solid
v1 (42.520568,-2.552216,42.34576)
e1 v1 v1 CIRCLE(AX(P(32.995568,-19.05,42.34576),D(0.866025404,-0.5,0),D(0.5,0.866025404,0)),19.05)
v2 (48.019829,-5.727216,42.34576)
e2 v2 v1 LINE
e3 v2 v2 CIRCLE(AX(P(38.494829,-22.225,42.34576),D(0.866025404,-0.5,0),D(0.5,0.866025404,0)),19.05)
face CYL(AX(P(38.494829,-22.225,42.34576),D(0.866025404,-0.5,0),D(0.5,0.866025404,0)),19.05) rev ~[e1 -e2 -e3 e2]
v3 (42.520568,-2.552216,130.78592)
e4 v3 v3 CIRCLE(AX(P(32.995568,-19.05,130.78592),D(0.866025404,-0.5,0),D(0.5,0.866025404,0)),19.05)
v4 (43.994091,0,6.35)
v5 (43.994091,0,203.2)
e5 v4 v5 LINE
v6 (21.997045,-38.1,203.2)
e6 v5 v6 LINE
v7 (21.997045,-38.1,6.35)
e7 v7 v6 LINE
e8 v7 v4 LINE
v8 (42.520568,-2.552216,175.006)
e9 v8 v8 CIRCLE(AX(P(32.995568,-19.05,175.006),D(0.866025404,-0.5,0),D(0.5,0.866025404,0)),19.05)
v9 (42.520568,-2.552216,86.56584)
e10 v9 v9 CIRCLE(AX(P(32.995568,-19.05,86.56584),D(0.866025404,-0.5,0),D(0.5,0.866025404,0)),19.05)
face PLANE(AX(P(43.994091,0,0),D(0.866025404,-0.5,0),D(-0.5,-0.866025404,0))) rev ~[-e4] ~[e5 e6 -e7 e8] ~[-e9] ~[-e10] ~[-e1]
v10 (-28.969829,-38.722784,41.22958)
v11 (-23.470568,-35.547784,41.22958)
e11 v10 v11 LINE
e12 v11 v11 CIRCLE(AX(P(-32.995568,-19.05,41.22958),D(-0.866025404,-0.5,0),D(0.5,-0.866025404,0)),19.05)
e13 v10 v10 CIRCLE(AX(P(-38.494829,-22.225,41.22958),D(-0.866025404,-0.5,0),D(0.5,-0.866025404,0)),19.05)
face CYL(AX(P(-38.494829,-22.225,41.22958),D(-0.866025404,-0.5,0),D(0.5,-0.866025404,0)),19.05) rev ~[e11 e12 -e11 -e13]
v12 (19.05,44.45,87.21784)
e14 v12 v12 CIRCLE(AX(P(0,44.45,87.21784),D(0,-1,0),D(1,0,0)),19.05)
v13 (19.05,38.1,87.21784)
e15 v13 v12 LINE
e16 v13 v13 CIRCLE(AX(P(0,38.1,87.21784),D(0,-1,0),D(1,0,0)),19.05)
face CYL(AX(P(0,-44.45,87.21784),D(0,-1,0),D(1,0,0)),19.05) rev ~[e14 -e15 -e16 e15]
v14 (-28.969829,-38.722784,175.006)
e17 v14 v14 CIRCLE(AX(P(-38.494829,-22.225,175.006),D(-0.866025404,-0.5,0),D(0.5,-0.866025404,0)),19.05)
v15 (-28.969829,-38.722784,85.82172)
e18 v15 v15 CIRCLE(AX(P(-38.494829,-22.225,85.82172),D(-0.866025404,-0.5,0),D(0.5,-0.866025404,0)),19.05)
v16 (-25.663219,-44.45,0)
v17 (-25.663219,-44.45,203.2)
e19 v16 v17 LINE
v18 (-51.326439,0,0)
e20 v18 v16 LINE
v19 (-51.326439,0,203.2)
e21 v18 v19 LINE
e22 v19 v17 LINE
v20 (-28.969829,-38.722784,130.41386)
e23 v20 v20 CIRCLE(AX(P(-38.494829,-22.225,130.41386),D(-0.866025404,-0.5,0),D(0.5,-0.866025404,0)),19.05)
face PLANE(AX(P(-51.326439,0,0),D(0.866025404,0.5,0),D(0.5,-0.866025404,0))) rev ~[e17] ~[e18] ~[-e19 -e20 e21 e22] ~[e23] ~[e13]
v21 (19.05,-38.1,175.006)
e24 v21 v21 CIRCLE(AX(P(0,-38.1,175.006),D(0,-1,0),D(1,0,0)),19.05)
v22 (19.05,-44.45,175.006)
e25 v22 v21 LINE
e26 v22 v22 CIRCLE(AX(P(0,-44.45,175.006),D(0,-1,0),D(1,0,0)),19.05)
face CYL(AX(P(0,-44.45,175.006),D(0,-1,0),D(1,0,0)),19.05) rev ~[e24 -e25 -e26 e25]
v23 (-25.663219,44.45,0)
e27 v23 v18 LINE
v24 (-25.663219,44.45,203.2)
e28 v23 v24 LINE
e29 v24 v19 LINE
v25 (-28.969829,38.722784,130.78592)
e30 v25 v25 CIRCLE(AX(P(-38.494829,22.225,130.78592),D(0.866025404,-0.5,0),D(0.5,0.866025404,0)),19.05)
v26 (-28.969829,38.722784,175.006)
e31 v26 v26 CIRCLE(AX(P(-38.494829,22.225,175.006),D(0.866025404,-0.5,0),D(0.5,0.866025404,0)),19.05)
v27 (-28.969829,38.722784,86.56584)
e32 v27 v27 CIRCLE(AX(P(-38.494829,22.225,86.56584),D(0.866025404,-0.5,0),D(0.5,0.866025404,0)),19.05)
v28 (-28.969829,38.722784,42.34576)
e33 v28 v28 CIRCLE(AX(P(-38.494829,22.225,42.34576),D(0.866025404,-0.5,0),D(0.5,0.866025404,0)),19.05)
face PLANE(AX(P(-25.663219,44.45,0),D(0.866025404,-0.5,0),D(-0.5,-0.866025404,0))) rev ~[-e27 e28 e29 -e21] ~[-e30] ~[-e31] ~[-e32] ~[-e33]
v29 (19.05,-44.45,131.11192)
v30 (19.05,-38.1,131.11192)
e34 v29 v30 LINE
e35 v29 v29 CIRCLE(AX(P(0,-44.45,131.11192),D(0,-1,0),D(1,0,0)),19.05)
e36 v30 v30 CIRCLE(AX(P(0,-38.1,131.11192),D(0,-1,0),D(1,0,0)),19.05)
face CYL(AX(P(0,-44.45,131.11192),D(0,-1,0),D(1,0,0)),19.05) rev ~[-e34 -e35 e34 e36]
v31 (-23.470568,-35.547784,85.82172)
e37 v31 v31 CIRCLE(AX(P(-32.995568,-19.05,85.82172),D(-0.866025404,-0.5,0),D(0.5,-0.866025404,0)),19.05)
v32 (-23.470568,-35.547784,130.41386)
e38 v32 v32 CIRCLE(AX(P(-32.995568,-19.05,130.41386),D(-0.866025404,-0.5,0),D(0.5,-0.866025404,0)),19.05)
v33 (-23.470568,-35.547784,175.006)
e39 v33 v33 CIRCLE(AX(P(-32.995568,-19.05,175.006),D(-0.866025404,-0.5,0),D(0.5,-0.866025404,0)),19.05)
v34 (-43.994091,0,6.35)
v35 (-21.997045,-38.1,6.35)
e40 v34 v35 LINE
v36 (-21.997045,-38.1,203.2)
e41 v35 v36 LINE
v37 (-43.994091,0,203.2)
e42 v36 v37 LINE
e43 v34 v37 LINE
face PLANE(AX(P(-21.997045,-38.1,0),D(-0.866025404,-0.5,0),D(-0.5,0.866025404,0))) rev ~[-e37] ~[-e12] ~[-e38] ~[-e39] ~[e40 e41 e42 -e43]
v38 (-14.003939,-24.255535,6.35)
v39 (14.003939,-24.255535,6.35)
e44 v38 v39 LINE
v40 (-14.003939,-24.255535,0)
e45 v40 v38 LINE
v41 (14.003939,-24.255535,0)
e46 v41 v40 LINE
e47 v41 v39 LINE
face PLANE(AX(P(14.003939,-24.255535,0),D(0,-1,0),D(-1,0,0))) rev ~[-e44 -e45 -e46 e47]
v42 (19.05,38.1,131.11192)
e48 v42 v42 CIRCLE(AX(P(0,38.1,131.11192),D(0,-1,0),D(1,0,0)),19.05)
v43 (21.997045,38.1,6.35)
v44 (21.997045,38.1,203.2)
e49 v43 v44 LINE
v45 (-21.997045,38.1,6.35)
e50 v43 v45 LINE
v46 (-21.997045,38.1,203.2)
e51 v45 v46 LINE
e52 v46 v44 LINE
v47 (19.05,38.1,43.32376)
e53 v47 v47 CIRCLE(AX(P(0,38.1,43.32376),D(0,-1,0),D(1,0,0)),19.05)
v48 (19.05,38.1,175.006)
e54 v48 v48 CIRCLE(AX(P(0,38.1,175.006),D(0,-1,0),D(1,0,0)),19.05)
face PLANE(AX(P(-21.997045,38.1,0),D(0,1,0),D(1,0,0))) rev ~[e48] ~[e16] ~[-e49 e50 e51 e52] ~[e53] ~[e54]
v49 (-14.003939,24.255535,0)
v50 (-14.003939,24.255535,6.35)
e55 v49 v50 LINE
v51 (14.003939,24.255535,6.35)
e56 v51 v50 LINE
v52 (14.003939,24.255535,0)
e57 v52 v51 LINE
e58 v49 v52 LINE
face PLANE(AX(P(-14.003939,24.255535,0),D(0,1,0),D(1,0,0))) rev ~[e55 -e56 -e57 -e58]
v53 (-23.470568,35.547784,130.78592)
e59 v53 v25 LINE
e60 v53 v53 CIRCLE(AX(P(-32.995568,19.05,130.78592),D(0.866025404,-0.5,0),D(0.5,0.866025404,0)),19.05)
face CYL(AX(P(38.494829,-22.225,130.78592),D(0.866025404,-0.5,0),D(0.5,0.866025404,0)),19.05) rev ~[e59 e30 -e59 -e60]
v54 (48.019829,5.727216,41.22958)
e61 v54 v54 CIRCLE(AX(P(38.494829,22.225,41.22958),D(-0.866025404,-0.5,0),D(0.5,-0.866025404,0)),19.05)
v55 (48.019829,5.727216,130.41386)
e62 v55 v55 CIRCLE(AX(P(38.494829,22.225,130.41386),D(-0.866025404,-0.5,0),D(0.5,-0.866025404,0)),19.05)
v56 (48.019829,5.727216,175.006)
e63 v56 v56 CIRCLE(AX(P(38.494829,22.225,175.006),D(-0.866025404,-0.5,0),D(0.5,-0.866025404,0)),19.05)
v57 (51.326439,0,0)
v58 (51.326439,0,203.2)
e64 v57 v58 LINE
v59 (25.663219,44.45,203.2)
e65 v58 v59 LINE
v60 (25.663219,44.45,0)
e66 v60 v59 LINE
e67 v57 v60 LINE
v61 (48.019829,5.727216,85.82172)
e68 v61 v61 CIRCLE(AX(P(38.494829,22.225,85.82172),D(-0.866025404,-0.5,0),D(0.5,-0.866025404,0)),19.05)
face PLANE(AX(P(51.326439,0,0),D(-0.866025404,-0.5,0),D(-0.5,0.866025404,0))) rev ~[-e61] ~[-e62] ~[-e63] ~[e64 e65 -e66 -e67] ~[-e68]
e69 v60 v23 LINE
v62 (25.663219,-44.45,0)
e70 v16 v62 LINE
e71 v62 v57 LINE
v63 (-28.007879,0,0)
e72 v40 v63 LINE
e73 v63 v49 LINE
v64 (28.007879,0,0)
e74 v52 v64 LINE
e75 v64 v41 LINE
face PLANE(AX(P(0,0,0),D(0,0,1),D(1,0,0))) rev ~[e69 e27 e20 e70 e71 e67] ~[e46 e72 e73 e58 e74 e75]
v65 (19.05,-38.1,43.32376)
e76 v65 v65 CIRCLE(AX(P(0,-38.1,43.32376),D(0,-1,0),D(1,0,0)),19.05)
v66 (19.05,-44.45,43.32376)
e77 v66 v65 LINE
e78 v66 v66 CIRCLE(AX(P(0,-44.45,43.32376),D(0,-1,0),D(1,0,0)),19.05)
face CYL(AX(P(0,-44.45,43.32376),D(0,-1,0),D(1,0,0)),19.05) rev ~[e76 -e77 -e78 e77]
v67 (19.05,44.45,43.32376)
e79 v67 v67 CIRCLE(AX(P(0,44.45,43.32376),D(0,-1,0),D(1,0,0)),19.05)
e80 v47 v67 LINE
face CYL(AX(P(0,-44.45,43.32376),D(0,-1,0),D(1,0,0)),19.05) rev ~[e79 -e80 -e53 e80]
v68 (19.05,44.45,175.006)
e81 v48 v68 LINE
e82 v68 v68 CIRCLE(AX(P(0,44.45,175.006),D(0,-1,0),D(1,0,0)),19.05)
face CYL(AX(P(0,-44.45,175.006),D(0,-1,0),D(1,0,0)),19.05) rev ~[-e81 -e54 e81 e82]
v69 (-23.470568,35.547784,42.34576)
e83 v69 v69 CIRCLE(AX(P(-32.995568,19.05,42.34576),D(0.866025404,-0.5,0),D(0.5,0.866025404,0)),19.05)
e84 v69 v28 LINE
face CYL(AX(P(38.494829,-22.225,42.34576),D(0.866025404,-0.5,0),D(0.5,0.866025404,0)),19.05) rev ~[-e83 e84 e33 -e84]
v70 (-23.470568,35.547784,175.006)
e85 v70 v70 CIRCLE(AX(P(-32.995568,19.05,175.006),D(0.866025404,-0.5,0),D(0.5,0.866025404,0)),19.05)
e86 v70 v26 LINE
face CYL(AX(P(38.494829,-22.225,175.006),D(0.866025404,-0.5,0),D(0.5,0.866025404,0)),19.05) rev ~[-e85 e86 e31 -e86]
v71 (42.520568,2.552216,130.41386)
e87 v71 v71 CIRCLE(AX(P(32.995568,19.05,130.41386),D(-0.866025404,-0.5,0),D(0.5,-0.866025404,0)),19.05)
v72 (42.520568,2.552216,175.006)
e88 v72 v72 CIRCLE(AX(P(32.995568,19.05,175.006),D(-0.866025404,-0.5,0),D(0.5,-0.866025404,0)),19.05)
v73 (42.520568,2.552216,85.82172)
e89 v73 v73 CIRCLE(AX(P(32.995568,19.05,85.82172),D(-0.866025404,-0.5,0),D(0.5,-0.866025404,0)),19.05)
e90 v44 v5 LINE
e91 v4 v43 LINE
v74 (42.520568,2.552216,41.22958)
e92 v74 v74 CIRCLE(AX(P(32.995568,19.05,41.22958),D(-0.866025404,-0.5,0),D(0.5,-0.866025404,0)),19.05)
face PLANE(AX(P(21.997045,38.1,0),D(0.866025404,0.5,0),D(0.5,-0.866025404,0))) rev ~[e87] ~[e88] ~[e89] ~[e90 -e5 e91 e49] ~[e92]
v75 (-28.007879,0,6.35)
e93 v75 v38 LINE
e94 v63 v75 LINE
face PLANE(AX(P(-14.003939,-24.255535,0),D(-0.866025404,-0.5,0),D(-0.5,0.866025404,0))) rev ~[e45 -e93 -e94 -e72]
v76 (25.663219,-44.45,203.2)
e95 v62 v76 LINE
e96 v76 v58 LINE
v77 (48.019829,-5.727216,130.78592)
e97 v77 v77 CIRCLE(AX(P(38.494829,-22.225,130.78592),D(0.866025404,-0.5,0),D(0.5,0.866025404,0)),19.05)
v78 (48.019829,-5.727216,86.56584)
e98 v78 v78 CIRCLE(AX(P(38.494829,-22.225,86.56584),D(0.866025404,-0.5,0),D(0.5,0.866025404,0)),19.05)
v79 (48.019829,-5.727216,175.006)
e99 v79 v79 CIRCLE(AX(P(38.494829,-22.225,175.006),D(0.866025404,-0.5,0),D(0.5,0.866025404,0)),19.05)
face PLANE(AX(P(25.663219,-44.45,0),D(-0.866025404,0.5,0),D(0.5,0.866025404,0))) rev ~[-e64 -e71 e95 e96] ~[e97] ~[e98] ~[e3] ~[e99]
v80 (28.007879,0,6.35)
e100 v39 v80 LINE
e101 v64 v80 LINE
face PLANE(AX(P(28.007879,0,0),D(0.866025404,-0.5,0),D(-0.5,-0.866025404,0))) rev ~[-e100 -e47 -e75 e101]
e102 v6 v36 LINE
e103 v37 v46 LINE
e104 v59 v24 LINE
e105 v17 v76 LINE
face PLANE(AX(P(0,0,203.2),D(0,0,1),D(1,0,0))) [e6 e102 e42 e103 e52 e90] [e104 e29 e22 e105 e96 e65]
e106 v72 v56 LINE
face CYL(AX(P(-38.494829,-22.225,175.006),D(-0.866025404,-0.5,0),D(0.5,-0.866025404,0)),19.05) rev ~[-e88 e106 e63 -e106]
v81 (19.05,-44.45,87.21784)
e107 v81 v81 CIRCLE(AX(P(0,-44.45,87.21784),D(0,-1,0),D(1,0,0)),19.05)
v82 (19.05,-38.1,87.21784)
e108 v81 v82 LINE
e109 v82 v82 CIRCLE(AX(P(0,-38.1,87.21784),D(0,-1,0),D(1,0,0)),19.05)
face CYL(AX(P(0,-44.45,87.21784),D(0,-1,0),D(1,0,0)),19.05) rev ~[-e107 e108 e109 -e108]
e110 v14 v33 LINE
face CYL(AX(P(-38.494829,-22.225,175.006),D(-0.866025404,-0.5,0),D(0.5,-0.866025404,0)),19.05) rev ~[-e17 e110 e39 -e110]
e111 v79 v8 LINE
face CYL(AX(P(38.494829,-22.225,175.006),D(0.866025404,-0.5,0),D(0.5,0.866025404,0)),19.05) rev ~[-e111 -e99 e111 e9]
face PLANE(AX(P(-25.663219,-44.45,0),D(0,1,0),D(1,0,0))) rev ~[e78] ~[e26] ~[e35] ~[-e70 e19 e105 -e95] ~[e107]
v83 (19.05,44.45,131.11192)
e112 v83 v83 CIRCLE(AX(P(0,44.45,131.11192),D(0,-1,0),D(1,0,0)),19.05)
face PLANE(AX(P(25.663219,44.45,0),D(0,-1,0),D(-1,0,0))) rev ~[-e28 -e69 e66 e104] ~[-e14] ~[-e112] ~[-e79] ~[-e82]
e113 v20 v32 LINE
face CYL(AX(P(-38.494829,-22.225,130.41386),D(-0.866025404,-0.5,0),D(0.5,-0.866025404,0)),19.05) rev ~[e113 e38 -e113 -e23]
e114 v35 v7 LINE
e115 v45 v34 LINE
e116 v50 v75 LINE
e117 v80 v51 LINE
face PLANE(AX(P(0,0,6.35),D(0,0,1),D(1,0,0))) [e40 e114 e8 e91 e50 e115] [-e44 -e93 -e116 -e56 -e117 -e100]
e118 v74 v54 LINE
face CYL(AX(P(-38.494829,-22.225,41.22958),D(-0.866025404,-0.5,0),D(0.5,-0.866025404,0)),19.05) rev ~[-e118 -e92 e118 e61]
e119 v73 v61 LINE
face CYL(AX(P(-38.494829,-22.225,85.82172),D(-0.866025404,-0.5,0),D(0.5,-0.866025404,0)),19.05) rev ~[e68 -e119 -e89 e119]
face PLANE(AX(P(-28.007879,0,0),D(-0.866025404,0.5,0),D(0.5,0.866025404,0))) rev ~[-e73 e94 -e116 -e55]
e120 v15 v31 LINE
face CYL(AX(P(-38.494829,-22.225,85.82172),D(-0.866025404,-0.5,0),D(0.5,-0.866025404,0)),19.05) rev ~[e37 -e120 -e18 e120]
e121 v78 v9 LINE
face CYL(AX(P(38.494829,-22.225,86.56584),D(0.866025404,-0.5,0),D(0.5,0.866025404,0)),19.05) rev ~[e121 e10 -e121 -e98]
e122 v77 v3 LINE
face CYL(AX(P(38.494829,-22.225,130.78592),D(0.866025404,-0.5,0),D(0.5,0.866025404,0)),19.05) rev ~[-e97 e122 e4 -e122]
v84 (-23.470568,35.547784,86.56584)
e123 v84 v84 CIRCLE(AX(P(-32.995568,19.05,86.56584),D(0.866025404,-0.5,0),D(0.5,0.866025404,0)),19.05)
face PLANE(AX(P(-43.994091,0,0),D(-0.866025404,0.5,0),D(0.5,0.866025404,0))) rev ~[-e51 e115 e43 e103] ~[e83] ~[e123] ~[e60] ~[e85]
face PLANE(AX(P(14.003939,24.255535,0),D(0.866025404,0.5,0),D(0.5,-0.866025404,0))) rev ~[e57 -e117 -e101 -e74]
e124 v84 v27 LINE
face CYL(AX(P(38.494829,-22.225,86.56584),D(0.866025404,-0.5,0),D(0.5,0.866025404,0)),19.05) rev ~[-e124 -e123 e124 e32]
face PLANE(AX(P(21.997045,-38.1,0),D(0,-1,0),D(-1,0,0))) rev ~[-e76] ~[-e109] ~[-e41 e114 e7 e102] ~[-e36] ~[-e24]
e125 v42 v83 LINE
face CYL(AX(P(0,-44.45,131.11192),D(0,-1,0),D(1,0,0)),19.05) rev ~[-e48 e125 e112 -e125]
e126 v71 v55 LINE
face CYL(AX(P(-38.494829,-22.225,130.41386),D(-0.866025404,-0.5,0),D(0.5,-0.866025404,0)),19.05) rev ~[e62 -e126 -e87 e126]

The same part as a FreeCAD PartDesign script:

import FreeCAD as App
import Part
import Sketcher
Q = App.Units.Quantity


def add_polygon(sketch, points):
    """Adds a closed chain of lines whose ends are joined by coincident constraints."""
    first, n = sketch.GeometryCount, len(points)
    for a, b in zip(points, points[1:] + points[:1]):
        sketch.addGeometry(Part.LineSegment(App.Vector(*a, 0), App.Vector(*b, 0)), False)
    for i in range(n):
        sketch.addConstraint(Sketcher.Constraint("Coincident", first + i, 2, first + (i + 1) % n, 1))

doc = App.newDocument("Part")
body = doc.addObject("PartDesign::Body", "Body")

sketch1 = body.newObject("Sketcher::SketchObject", "Sketch")
sketch1.AttachmentSupport = (doc.getObject("XY_Plane"), [""])
sketch1.MapMode = "FlatFace"
add_polygon(sketch1, [(26, 44), (-26, 44), (-51, 0), (-26, -44), (26, -44), (51, 0)])
add_polygon(sketch1, [(22, 38), (44, 0), (22, -38), (-22, -38), (-44, 0), (-22, 38)])
sketch1.addConstraint([
    Sketcher.Constraint("Horizontal", 0),
    Sketcher.Constraint("Horizontal", 3),
    Sketcher.Constraint("Horizontal", 8),
    Sketcher.Constraint("Horizontal", 11),
    Sketcher.Constraint("Symmetric", 0, 2, 3, 2, -1, 1),
    Sketcher.Constraint("Symmetric", 1, 2, 4, 2, -1, 1),
    Sketcher.Constraint("Symmetric", 6, 2, 9, 2, -1, 1),
    Sketcher.Constraint("Symmetric", 7, 2, 10, 2, -1, 1),
    Sketcher.Constraint("PointOnObject", 1, 2, -1),
    Sketcher.Constraint("PointOnObject", 6, 2, -1),
    Sketcher.Constraint("Parallel", 2, 5),
    Sketcher.Constraint("Parallel", 5, 6),
    Sketcher.Constraint("Parallel", 4, 7),
    Sketcher.Constraint("Parallel", 6, 9),
    Sketcher.Constraint("Vertical", 0, 2, 2, 2),
    Sketcher.Constraint("Angle", 1, Q("-120 deg")),
    Sketcher.Constraint("DistanceY", 7, 2, -1, 1, Q("1.5 in")),
    Sketcher.Constraint("DistanceY", 2, 2, 0, 2, Q("3.5 in")),
    Sketcher.Constraint("DistanceX", 0, 2, 0, 1, 51.326439),
    Sketcher.Constraint("DistanceX", 8, 2, 8, 1, 43.994091),
])
pad1 = body.newObject("PartDesign::Pad", "Pad")
pad1.Profile = sketch1
pad1.Length = Q("8 in")

sketch2 = body.newObject("Sketcher::SketchObject", "Sketch001")
sketch2.AttachmentSupport = (doc.getObject("XY_Plane"), [""])
sketch2.MapMode = "FlatFace"
add_polygon(sketch2, [(-22, -38), (22, -38), (44, 0), (22, 38), (-22, 38), (-44, 0)])
sketch2.addConstraint([
    Sketcher.Constraint("Horizontal", 0),
    Sketcher.Constraint("Horizontal", 3),
    Sketcher.Constraint("Symmetric", 0, 2, 3, 2, -1, 1),
    Sketcher.Constraint("Symmetric", 1, 2, 4, 2, -1, 1),
    Sketcher.Constraint("PointOnObject", 1, 2, -1),
    Sketcher.Constraint("Parallel", 2, 5),
    Sketcher.Constraint("Vertical", 0, 2, 2, 2),
    Sketcher.Constraint("Angle", 1, Q("60 deg")),
    Sketcher.Constraint("DistanceY", 0, 2, 2, 2, Q("3 in")),
    Sketcher.Constraint("DistanceX", 0, 1, 0, 2, 43.994091),
])
pad2 = body.newObject("PartDesign::Pad", "Pad001")
pad2.Profile = sketch2
pad2.Length = Q("0.25 in")

sketch3 = body.newObject("Sketcher::SketchObject", "Sketch002")
sketch3.AttachmentSupport = (doc.getObject("XZ_Plane"), [""])
sketch3.MapMode = "FlatFace"
sketch3.AttachmentOffset = App.Placement(App.Vector(0, 0, 1.75 * 25.4), App.Rotation())
sketch3.addGeometry([
    Part.Circle(App.Vector(0, 175, 0), App.Vector(0, 0, 1), 19),
    Part.Circle(App.Vector(0, 131, 0), App.Vector(0, 0, 1), 19),
    Part.Circle(App.Vector(0, 87, 0), App.Vector(0, 0, 1), 19),
    Part.Circle(App.Vector(0, 43, 0), App.Vector(0, 0, 1), 19),
], False)
sketch3.addConstraint([
    Sketcher.Constraint("Equal", 0, 1),
    Sketcher.Constraint("Equal", 1, 2),
    Sketcher.Constraint("Equal", 2, 3),
    Sketcher.Constraint("PointOnObject", 0, 3, -2),
    Sketcher.Constraint("PointOnObject", 1, 3, -2),
    Sketcher.Constraint("PointOnObject", 2, 3, -2),
    Sketcher.Constraint("PointOnObject", 3, 3, -2),
    Sketcher.Constraint("Diameter", 0, Q("1.5 in")),
    Sketcher.Constraint("DistanceY", -1, 1, 0, 3, Q("6.89 in")),
    Sketcher.Constraint("DistanceY", -1, 1, 1, 3, 131.11192),
    Sketcher.Constraint("DistanceY", -1, 1, 2, 3, 87.21784),
    Sketcher.Constraint("DistanceY", -1, 1, 3, 3, 43.32376),
])
pocket1 = body.newObject("PartDesign::Pocket", "Pocket")
pocket1.Profile = sketch3
pocket1.Length = Q("4 in")

sketch4 = body.newObject("Sketcher::SketchObject", "Sketch003")
sketch4.Placement = App.Placement(App.Vector(38.494829, -22.225, 0), App.Rotation(App.Vector(0.5, 0.866025404, 0), App.Vector(0, 0, 1), App.Vector(0.866025404, -0.5, 0), "ZXY"))
sketch4.addGeometry([
    Part.Circle(App.Vector(0, 175, 0), App.Vector(0, 0, 1), 19),
    Part.Circle(App.Vector(0, 131, 0), App.Vector(0, 0, 1), 19),
    Part.Circle(App.Vector(0, 87, 0), App.Vector(0, 0, 1), 19),
    Part.Circle(App.Vector(0, 42, 0), App.Vector(0, 0, 1), 19),
], False)
sketch4.addConstraint([
    Sketcher.Constraint("Equal", 0, 1),
    Sketcher.Constraint("Equal", 1, 2),
    Sketcher.Constraint("Equal", 2, 3),
    Sketcher.Constraint("PointOnObject", 0, 3, -2),
    Sketcher.Constraint("PointOnObject", 1, 3, -2),
    Sketcher.Constraint("PointOnObject", 2, 3, -2),
    Sketcher.Constraint("PointOnObject", 3, 3, -2),
    Sketcher.Constraint("Diameter", 0, Q("1.5 in")),
    Sketcher.Constraint("DistanceY", -1, 1, 0, 3, Q("6.89 in")),
    Sketcher.Constraint("DistanceY", -1, 1, 1, 3, 130.78592),
    Sketcher.Constraint("DistanceY", -1, 1, 2, 3, 86.56584),
    Sketcher.Constraint("DistanceY", -1, 1, 3, 3, 42.34576),
])
pocket2 = body.newObject("PartDesign::Pocket", "Pocket001")
pocket2.Profile = sketch4
pocket2.Length = Q("4 in")

sketch5 = body.newObject("Sketcher::SketchObject", "Sketch004")
sketch5.Placement = App.Placement(App.Vector(-38.494829, -22.225, 0), App.Rotation(App.Vector(0.5, -0.866025404, 0), App.Vector(0, 0, 1), App.Vector(-0.866025404, -0.5, 0), "ZXY"))
sketch5.addGeometry([
    Part.Circle(App.Vector(0, 175, 0), App.Vector(0, 0, 1), 19),
    Part.Circle(App.Vector(0, 130, 0), App.Vector(0, 0, 1), 19),
    Part.Circle(App.Vector(0, 86, 0), App.Vector(0, 0, 1), 19),
    Part.Circle(App.Vector(0, 41, 0), App.Vector(0, 0, 1), 19),
], False)
sketch5.addConstraint([
    Sketcher.Constraint("Equal", 0, 1),
    Sketcher.Constraint("Equal", 1, 2),
    Sketcher.Constraint("Equal", 2, 3),
    Sketcher.Constraint("PointOnObject", 0, 3, -2),
    Sketcher.Constraint("PointOnObject", 1, 3, -2),
    Sketcher.Constraint("PointOnObject", 2, 3, -2),
    Sketcher.Constraint("PointOnObject", 3, 3, -2),
    Sketcher.Constraint("Diameter", 0, Q("1.5 in")),
    Sketcher.Constraint("DistanceY", -1, 1, 0, 3, Q("6.89 in")),
    Sketcher.Constraint("DistanceY", -1, 1, 1, 3, 130.41386),
    Sketcher.Constraint("DistanceY", -1, 1, 2, 3, 85.82172),
    Sketcher.Constraint("DistanceY", -1, 1, 3, 3, 41.22958),
])
pocket3 = body.newObject("PartDesign::Pocket", "Pocket002")
pocket3.Profile = sketch5
pocket3.Length = Q("4 in")

sketch6 = body.newObject("Sketcher::SketchObject", "Sketch005")
sketch6.AttachmentSupport = (doc.getObject("XY_Plane"), [""])
sketch6.MapMode = "FlatFace"
add_polygon(sketch6, [(-14, 24), (14, 24), (28, 0), (14, -24), (-14, -24), (-28, 0)])
sketch6.addConstraint([
    Sketcher.Constraint("Horizontal", 0),
    Sketcher.Constraint("Horizontal", 3),
    Sketcher.Constraint("Symmetric", 0, 2, 3, 2, -1, 1),
    Sketcher.Constraint("Symmetric", 1, 2, 4, 2, -1, 1),
    Sketcher.Constraint("PointOnObject", 1, 2, -1),
    Sketcher.Constraint("Parallel", 2, 5),
    Sketcher.Constraint("Vertical", 0, 2, 2, 2),
    Sketcher.Constraint("Angle", 1, Q("-60 deg")),
    Sketcher.Constraint("DistanceX", 0, 1, 0, 2, 28.007879),
    Sketcher.Constraint("Distance", 1, 28.007879),
])
pocket4 = body.newObject("PartDesign::Pocket", "Pocket003")
pocket4.Profile = sketch6
pocket4.Length = Q("1 in")
pocket4.Reversed = True

doc.recompute()
